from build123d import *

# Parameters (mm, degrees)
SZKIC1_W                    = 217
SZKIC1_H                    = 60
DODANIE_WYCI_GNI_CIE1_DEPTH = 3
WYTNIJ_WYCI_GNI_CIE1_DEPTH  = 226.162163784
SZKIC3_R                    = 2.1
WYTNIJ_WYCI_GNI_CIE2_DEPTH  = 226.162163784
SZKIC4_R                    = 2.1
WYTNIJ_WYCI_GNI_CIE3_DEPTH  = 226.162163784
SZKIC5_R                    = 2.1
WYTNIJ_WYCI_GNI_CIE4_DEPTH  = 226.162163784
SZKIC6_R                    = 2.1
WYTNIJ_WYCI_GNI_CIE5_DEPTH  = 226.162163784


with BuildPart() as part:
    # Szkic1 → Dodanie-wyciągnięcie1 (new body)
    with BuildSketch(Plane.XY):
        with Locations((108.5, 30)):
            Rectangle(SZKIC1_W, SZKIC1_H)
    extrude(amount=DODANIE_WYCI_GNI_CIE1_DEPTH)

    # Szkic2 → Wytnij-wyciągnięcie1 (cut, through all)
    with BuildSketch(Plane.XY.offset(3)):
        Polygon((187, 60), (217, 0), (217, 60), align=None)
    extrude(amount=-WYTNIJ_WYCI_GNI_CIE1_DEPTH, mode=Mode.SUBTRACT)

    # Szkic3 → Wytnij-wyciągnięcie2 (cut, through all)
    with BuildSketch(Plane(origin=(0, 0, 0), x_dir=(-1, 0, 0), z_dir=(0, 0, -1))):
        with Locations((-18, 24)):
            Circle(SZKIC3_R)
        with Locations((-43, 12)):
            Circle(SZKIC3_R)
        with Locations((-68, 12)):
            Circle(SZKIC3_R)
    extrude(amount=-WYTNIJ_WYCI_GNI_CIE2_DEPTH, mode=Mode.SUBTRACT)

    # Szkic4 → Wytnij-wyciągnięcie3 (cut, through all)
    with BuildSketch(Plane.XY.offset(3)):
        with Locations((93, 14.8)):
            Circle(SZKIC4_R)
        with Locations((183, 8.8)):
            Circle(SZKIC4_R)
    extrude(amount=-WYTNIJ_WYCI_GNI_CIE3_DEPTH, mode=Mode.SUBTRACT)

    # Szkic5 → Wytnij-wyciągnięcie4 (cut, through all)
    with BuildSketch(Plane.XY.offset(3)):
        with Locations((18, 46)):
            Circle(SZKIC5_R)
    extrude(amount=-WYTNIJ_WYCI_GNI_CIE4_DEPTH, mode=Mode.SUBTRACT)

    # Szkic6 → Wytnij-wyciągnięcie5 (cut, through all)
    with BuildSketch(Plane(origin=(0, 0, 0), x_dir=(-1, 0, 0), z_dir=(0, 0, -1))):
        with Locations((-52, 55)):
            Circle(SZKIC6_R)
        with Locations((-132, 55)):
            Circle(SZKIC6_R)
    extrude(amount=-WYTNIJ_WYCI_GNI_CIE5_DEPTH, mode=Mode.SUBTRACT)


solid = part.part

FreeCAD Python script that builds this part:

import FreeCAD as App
import Part
import Sketcher
Q = App.Units.Quantity


def add_polygon(sketch, points):
    """Adds a closed chain of lines whose ends are joined by coincident constraints."""
    first, n = sketch.GeometryCount, len(points)
    for a, b in zip(points, points[1:] + points[:1]):
        sketch.addGeometry(Part.LineSegment(App.Vector(*a, 0), App.Vector(*b, 0)), False)
    for i in range(n):
        sketch.addConstraint(Sketcher.Constraint("Coincident", first + i, 2, first + (i + 1) % n, 1))

doc = App.newDocument("Part")
body = doc.addObject("PartDesign::Body", "Body")

# Sketch on XY plane
sketch1 = body.newObject("Sketcher::SketchObject", "Sketch")
sketch1.AttachmentSupport = (doc.getObject("XY_Plane"), [""])
sketch1.MapMode = "FlatFace"
add_polygon(sketch1, [(0, 60), (0, 0), (217, 0), (217, 60)])  # lines 0-3
sketch1.addConstraint(Sketcher.Constraint("Vertical", 0))
sketch1.addConstraint(Sketcher.Constraint("Horizontal", 1))
sketch1.addConstraint(Sketcher.Constraint("Vertical", 2))
sketch1.addConstraint(Sketcher.Constraint("Horizontal", 3))
sketch1.addConstraint(Sketcher.Constraint("Coincident", 0, 2, -1, 1))
sketch1.addConstraint(Sketcher.Constraint("DistanceX", 1, 1, 1, 2, Q("217 mm")))
sketch1.addConstraint(Sketcher.Constraint("DistanceY", 0, 2, 0, 1, Q("60 mm")))
pad1 = body.newObject("PartDesign::Pad", "Pad")
pad1.Profile = sketch1
pad1.Length = 3

# Sketch on XY plane
sketch2 = body.newObject("Sketcher::SketchObject", "Sketch001")
sketch2.AttachmentSupport = (doc.getObject("XY_Plane"), [""])
sketch2.MapMode = "FlatFace"
sketch2.AttachmentOffset = App.Placement(App.Vector(0, 0, 3), App.Rotation())
add_polygon(sketch2, [(187, 60), (217, 0), (217, 60)])  # lines 0-2
sketch2.addConstraint(Sketcher.Constraint("Vertical", 1))
sketch2.addConstraint(Sketcher.Constraint("Horizontal", 2))
sketch2.addConstraint(Sketcher.Constraint("PointOnObject", 0, 2, -1))
sketch2.addConstraint(Sketcher.Constraint("DistanceX", 2, 2, 2, 1, Q("30 mm")))
sketch2.addConstraint(Sketcher.Constraint("DistanceY", 1, 1, 1, 2, Q("60 mm")))
sketch2.addConstraint(Sketcher.Constraint("DistanceX", -1, 1, 0, 2, Q("217 mm")))
pocket1 = body.newObject("PartDesign::Pocket", "Pocket")
pocket1.Profile = sketch2
pocket1.Type = "ThroughAll"

# Sketch on XY plane
sketch3 = body.newObject("Sketcher::SketchObject", "Sketch002")
sketch3.AttachmentSupport = (doc.getObject("XY_Plane"), [""])
sketch3.MapMode = "FlatFace"
sketch3.addGeometry(Part.Circle(App.Vector(18, 24, 0), App.Vector(0, 0, 1), 2.1), False)
sketch3.addGeometry(Part.Circle(App.Vector(43, 12, 0), App.Vector(0, 0, 1), 2.1), False)
sketch3.addGeometry(Part.Circle(App.Vector(68, 12, 0), App.Vector(0, 0, 1), 2.1), False)
sketch3.addConstraint(Sketcher.Constraint("Equal", 0, 1))
sketch3.addConstraint(Sketcher.Constraint("Equal", 1, 2))
sketch3.addConstraint(Sketcher.Constraint("Horizontal", 1, 3, 2, 3))
sketch3.addConstraint(Sketcher.Constraint("Diameter", 0, Q("4.2 mm")))
sketch3.addConstraint(Sketcher.Constraint("DistanceX", -1, 1, 0, 3, Q("18 mm")))
sketch3.addConstraint(Sketcher.Constraint("DistanceY", -1, 1, 0, 3, Q("24 mm")))
sketch3.addConstraint(Sketcher.Constraint("DistanceX", -1, 1, 1, 3, Q("43 mm")))
sketch3.addConstraint(Sketcher.Constraint("DistanceY", -1, 1, 1, 3, Q("12 mm")))
sketch3.addConstraint(Sketcher.Constraint("DistanceX", -1, 1, 2, 3, Q("68 mm")))
pocket2 = body.newObject("PartDesign::Pocket", "Pocket001")
pocket2.Profile = sketch3
pocket2.Type = "ThroughAll"
pocket2.Reversed = True

# Sketch on XY plane
sketch4 = body.newObject("Sketcher::SketchObject", "Sketch003")
sketch4.AttachmentSupport = (doc.getObject("XY_Plane"), [""])
sketch4.MapMode = "FlatFace"
sketch4.AttachmentOffset = App.Placement(App.Vector(0, 0, 3), App.Rotation())
sketch4.addGeometry(Part.Circle(App.Vector(93, 14.8, 0), App.Vector(0, 0, 1), 2.1), False)
sketch4.addGeometry(Part.Circle(App.Vector(183, 8.8, 0), App.Vector(0, 0, 1), 2.1), False)
sketch4.addConstraint(Sketcher.Constraint("Equal", 0, 1))
sketch4.addConstraint(Sketcher.Constraint("Diameter", 0, Q("4.2 mm")))
sketch4.addConstraint(Sketcher.Constraint("DistanceX", -1, 1, 0, 3, Q("93 mm")))
sketch4.addConstraint(Sketcher.Constraint("DistanceX", -1, 1, 1, 3, Q("183 mm")))
sketch4.addConstraint(Sketcher.Constraint("DistanceY", 1, 3, 0, 3, Q("6 mm")))
sketch4.addConstraint(Sketcher.Constraint("DistanceY", -1, 1, 0, 3, Q("14.8 mm")))
pocket3 = body.newObject("PartDesign::Pocket", "Pocket002")
pocket3.Profile = sketch4
pocket3.Type = "ThroughAll"

# Sketch on XY plane
sketch5 = body.newObject("Sketcher::SketchObject", "Sketch004")
sketch5.AttachmentSupport = (doc.getObject("XY_Plane"), [""])
sketch5.MapMode = "FlatFace"
sketch5.AttachmentOffset = App.Placement(App.Vector(0, 0, 3), App.Rotation())
sketch5.addGeometry(Part.Circle(App.Vector(18, 46, 0), App.Vector(0, 0, 1), 2.1), False)
sketch5.addConstraint(Sketcher.Constraint("Diameter", 0, Q("4.2 mm")))
sketch5.addConstraint(Sketcher.Constraint("DistanceX", -1, 1, 0, 3, Q("18 mm")))
sketch5.addConstraint(Sketcher.Constraint("DistanceY", -1, 1, 0, 3, Q("46 mm")))
pocket4 = body.newObject("PartDesign::Pocket", "Pocket003")
pocket4.Profile = sketch5
pocket4.Type = "ThroughAll"

# Sketch on XY plane
sketch6 = body.newObject("Sketcher::SketchObject", "Sketch005")
sketch6.AttachmentSupport = (doc.getObject("XY_Plane"), [""])
sketch6.MapMode = "FlatFace"
sketch6.addGeometry(Part.Circle(App.Vector(52, 55, 0), App.Vector(0, 0, 1), 2.1), False)
sketch6.addGeometry(Part.Circle(App.Vector(132, 55, 0), App.Vector(0, 0, 1), 2.1), False)
sketch6.addConstraint(Sketcher.Constraint("Equal", 0, 1))
sketch6.addConstraint(Sketcher.Constraint("Horizontal", 0, 3, 1, 3))
sketch6.addConstraint(Sketcher.Constraint("Diameter", 0, Q("4.2 mm")))
sketch6.addConstraint(Sketcher.Constraint("DistanceX", -1, 1, 0, 3, Q("52 mm")))
sketch6.addConstraint(Sketcher.Constraint("DistanceY", -1, 1, 0, 3, Q("55 mm")))
sketch6.addConstraint(Sketcher.Constraint("DistanceX", -1, 1, 1, 3, Q("132 mm")))
pocket5 = body.newObject("PartDesign::Pocket", "Pocket004")
pocket5.Profile = sketch6
pocket5.Type = "ThroughAll"
pocket5.Reversed = True

doc.recompute()
